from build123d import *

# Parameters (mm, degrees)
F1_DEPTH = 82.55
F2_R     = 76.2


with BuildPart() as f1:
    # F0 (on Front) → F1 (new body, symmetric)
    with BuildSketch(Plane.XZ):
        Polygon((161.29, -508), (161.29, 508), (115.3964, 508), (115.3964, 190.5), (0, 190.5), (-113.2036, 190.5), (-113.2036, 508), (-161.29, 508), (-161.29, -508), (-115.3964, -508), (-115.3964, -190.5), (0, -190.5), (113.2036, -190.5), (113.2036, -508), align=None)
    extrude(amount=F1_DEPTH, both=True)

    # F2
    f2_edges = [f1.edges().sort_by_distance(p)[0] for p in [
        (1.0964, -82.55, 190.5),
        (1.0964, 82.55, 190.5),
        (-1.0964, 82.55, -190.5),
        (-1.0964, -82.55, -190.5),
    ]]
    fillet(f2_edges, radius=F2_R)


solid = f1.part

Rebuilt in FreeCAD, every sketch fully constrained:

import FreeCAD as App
import Part
import Sketcher
from FreeCAD import Vector
Q = App.Units.Quantity


def edges_at(feature, points):
    """Names of the edges that pass closest to the given points."""
    edges = feature.Shape.Edges
    near = lambda p: min(range(len(edges)), key=lambda i: edges[i].distToShape(Part.Vertex(*p))[0])
    return sorted({f"Edge{near(p) + 1}" for p in points})

doc = App.newDocument("Part")
body = doc.addObject("PartDesign::Body", "Body")

# Sketch on XZ plane
sketch1 = body.newObject("Sketcher::SketchObject", "Sketch")
sketch1.AttachmentSupport = (doc.getObject("XZ_Plane"), [""])
sketch1.MapMode = "FlatFace"
sketch1.addGeometry(Part.LineSegment(Vector(161, -508, 0), Vector(161, 508, 0)), False)
sketch1.addGeometry(Part.LineSegment(Vector(161, 508, 0), Vector(115, 508, 0)), False)
sketch1.addGeometry(Part.LineSegment(Vector(115, 508, 0), Vector(115, 190, 0)), False)
sketch1.addGeometry(Part.LineSegment(Vector(115, 190, 0), Vector(-113, 190, 0)), False)
sketch1.addGeometry(Part.LineSegment(Vector(-113, 190, 0), Vector(-113, 508, 0)), False)
sketch1.addGeometry(Part.LineSegment(Vector(-113, 508, 0), Vector(-161, 508, 0)), False)
sketch1.addGeometry(Part.LineSegment(Vector(-161, 508, 0), Vector(-161, -508, 0)), False)
sketch1.addGeometry(Part.LineSegment(Vector(-161, -508, 0), Vector(-115, -508, 0)), False)
sketch1.addGeometry(Part.LineSegment(Vector(-115, -508, 0), Vector(-115, -190, 0)), False)
sketch1.addGeometry(Part.LineSegment(Vector(-115, -190, 0), Vector(113, -190, 0)), False)
sketch1.addGeometry(Part.LineSegment(Vector(113, -190, 0), Vector(113, -508, 0)), False)
sketch1.addGeometry(Part.LineSegment(Vector(113, -508, 0), Vector(161, -508, 0)), False)
sketch1.addConstraint(Sketcher.Constraint("Coincident", 0, 2, 1, 1))
sketch1.addConstraint(Sketcher.Constraint("Coincident", 1, 2, 2, 1))
sketch1.addConstraint(Sketcher.Constraint("Coincident", 2, 2, 3, 1))
sketch1.addConstraint(Sketcher.Constraint("Coincident", 3, 2, 4, 1))
sketch1.addConstraint(Sketcher.Constraint("Coincident", 4, 2, 5, 1))
sketch1.addConstraint(Sketcher.Constraint("Coincident", 5, 2, 6, 1))
sketch1.addConstraint(Sketcher.Constraint("Coincident", 6, 2, 7, 1))
sketch1.addConstraint(Sketcher.Constraint("Coincident", 7, 2, 8, 1))
sketch1.addConstraint(Sketcher.Constraint("Coincident", 8, 2, 9, 1))
sketch1.addConstraint(Sketcher.Constraint("Coincident", 9, 2, 10, 1))
sketch1.addConstraint(Sketcher.Constraint("Coincident", 10, 2, 11, 1))
sketch1.addConstraint(Sketcher.Constraint("Coincident", 11, 2, 0, 1))
sketch1.addConstraint(Sketcher.Constraint("Vertical", 0))
sketch1.addConstraint(Sketcher.Constraint("Horizontal", 1))
sketch1.addConstraint(Sketcher.Constraint("Vertical", 2))
sketch1.addConstraint(Sketcher.Constraint("Horizontal", 3))
sketch1.addConstraint(Sketcher.Constraint("Vertical", 4))
sketch1.addConstraint(Sketcher.Constraint("Horizontal", 5))
sketch1.addConstraint(Sketcher.Constraint("Vertical", 6))
sketch1.addConstraint(Sketcher.Constraint("Horizontal", 7))
sketch1.addConstraint(Sketcher.Constraint("Vertical", 8))
sketch1.addConstraint(Sketcher.Constraint("Horizontal", 9))
sketch1.addConstraint(Sketcher.Constraint("Vertical", 10))
sketch1.addConstraint(Sketcher.Constraint("Horizontal", 11))
sketch1.addConstraint(Sketcher.Constraint("Symmetric", 0, 2, 6, 2, -1, 1))
sketch1.addConstraint(Sketcher.Constraint("Symmetric", 2, 2, 8, 2, -1, 1))
sketch1.addConstraint(Sketcher.Constraint("Symmetric", 4, 2, 10, 2, -1, 1))
sketch1.addConstraint(Sketcher.Constraint("Horizontal", 1, 2, 4, 2))
sketch1.addConstraint(Sketcher.Constraint("DistanceX", 3, 2, 3, 1, Q("9 in")))
sketch1.addConstraint(Sketcher.Constraint("DistanceY", 0, 1, 0, 2, Q("40 in")))
sketch1.addConstraint(Sketcher.Constraint("DistanceY", 2, 2, 2, 1, Q("12.5 in")))
sketch1.addConstraint(Sketcher.Constraint("DistanceX", 5, 2, 0, 2, Q("12.7 in")))
sketch1.addConstraint(Sketcher.Constraint("DistanceX", 1, 2, 1, 1, 45.8936))
pad1 = body.newObject("PartDesign::Pad", "Pad")
pad1.Profile = sketch1
pad1.Length = Q("6.5 in")
pad1.Midplane = True
doc.recompute()

fillet = body.newObject("PartDesign::Fillet", "Fillet")
fillet.Base = (pad1, edges_at(pad1, [
    (1.096, -82.55, 190.5),
    (1.096, 82.55, 190.5),
    (-1.096, 82.55, -190.5),
    (-1.096, -82.55, -190.5),
]))
fillet.Radius = Q("3 in")

doc.recompute()
